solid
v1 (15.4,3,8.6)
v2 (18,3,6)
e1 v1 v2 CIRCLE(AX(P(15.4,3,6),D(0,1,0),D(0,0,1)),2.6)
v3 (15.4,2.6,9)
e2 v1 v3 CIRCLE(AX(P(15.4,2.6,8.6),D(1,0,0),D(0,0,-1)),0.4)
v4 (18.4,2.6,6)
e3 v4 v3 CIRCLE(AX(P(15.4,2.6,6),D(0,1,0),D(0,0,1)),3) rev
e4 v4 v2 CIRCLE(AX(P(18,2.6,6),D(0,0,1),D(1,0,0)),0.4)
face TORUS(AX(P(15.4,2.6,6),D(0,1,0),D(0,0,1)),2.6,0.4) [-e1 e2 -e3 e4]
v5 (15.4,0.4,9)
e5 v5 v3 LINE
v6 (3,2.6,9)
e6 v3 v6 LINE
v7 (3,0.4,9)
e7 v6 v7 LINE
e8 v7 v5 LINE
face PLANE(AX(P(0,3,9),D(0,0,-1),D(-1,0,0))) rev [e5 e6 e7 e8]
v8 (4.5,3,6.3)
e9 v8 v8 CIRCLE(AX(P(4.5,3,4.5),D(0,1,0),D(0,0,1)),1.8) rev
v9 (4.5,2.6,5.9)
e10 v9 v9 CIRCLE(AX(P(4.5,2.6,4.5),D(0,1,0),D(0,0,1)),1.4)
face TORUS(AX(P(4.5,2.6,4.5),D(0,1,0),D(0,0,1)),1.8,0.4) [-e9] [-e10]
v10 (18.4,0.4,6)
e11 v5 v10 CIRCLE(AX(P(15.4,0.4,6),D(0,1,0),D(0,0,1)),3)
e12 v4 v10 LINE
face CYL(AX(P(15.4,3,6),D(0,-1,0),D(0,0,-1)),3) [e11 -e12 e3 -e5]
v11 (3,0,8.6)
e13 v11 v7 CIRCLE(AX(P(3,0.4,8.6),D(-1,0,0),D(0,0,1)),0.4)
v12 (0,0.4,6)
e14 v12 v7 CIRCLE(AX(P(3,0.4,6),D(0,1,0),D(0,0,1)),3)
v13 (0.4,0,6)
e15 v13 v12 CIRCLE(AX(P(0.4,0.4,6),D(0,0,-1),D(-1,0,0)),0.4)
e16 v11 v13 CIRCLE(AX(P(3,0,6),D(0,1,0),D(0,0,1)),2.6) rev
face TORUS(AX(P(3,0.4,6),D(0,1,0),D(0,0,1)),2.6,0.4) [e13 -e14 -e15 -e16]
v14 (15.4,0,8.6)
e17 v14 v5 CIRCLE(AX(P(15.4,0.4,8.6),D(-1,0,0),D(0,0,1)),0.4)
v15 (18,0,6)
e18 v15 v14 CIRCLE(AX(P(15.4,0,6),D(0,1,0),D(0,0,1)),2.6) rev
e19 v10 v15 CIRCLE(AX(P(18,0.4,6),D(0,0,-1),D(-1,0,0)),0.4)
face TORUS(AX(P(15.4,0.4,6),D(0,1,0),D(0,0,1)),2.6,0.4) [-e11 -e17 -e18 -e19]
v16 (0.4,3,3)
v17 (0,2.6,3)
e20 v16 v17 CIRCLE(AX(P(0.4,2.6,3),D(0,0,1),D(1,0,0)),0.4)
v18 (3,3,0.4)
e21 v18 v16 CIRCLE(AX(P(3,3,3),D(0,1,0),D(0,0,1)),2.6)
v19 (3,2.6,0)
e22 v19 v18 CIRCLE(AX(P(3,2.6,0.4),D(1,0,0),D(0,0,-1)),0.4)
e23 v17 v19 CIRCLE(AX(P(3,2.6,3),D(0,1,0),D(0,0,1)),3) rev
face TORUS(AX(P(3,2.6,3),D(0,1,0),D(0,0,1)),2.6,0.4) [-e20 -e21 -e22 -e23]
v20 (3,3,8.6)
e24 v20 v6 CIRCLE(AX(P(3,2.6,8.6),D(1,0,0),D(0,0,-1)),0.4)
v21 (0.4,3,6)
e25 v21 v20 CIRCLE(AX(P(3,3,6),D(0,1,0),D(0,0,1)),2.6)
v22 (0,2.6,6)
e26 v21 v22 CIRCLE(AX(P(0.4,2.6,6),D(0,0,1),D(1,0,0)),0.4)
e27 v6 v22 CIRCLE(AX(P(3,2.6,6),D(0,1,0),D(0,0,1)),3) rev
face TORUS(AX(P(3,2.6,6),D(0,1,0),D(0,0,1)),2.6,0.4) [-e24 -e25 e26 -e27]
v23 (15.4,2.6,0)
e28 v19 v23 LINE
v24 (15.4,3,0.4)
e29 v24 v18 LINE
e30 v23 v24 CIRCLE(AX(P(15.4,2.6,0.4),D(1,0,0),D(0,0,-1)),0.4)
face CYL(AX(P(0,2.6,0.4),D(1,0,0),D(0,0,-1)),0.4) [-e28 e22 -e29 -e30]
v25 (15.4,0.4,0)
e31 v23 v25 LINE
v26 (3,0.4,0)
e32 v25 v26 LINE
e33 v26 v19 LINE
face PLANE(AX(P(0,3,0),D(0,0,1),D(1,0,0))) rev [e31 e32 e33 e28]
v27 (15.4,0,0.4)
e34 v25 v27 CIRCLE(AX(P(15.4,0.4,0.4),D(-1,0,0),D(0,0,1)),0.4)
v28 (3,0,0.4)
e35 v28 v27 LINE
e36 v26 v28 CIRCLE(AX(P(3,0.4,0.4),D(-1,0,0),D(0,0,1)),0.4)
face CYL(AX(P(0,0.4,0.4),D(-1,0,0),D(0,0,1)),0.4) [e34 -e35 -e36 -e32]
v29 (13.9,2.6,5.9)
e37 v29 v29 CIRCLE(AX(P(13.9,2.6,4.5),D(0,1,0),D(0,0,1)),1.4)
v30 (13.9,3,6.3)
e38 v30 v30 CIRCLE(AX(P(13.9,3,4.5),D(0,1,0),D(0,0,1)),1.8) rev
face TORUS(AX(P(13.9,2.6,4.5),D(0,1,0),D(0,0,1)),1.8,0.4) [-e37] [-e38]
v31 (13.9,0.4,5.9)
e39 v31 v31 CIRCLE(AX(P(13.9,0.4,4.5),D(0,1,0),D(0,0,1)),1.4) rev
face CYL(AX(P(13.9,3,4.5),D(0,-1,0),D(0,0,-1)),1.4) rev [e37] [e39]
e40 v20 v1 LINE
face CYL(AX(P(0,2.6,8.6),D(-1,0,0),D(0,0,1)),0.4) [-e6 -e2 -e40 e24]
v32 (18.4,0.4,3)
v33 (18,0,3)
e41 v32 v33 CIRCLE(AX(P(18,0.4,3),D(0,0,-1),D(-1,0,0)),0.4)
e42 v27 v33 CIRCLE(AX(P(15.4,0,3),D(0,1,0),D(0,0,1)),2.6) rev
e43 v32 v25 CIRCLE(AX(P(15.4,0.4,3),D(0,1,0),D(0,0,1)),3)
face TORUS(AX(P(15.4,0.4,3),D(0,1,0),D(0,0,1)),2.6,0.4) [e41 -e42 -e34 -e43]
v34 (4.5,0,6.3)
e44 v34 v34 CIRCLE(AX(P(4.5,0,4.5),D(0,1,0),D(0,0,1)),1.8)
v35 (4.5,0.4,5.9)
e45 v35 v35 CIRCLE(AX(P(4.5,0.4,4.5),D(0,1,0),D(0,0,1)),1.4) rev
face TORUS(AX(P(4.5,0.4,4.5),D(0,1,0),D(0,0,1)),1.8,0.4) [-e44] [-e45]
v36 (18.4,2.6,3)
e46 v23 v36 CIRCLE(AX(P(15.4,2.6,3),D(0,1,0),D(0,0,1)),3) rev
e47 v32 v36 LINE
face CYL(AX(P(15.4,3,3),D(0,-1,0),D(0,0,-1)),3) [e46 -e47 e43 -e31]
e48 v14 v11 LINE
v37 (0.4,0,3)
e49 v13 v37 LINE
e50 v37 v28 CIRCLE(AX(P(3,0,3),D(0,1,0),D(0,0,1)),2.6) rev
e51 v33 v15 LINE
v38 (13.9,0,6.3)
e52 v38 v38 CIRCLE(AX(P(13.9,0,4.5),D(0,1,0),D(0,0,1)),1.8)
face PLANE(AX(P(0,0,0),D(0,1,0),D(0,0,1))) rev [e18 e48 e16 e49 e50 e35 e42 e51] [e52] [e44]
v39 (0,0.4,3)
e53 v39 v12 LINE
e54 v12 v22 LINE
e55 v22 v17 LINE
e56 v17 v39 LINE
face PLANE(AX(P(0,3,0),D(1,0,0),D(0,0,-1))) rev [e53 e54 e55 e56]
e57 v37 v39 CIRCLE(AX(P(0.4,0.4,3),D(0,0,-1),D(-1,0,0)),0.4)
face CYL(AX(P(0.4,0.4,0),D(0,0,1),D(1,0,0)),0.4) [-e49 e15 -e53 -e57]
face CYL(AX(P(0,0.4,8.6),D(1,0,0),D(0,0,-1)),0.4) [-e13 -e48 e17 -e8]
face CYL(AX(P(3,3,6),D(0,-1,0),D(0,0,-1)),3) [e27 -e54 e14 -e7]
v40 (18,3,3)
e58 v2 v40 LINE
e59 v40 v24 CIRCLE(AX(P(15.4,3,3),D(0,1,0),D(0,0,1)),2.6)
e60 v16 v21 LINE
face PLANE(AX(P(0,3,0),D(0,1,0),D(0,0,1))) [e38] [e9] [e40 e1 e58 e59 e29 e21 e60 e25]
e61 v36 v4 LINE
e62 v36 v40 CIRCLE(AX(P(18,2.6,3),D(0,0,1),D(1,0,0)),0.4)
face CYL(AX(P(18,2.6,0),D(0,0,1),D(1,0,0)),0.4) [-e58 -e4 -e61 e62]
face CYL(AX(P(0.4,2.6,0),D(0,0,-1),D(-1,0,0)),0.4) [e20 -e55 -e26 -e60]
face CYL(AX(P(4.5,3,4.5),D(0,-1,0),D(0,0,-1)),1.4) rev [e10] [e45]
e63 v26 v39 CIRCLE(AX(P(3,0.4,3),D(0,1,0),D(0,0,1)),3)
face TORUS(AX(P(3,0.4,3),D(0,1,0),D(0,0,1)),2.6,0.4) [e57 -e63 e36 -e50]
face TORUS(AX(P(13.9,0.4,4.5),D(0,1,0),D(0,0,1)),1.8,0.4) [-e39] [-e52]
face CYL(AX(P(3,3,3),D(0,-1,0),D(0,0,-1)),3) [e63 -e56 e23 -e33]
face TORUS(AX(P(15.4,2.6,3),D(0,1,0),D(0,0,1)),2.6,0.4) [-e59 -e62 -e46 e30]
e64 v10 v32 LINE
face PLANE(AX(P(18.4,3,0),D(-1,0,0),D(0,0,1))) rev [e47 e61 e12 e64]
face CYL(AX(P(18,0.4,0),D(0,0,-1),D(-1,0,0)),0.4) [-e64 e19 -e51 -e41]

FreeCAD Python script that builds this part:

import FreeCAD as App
import Part
import Sketcher
Q = App.Units.Quantity


def edges_at(feature, points):
    """Names of the edges that pass closest to the given points."""
    edges = feature.Shape.Edges
    near = lambda p: min(range(len(edges)), key=lambda i: edges[i].distToShape(Part.Vertex(*p))[0])
    return sorted({f"Edge{near(p) + 1}" for p in points})

doc = App.newDocument("Part")
body = doc.addObject("PartDesign::Body", "Body")

# Sketch on XZ plane
sketch1 = doc.addObject("Sketcher::SketchObject", "Sketch")
body.addObject(sketch1)
sketch1.AttachmentSupport = (doc.XZ_Plane, [""])
sketch1.MapMode = "FlatFace"
sketch1.addGeometry([
    Part.LineSegment(App.Vector(0, 0, 0), App.Vector(0, 9, 0)),  # 0
    Part.LineSegment(App.Vector(0, 9, 0), App.Vector(18.4, 9, 0)),  # 1
    Part.LineSegment(App.Vector(18.4, 9, 0), App.Vector(18.4, 0, 0)),  # 2
    Part.LineSegment(App.Vector(18.4, 0, 0), App.Vector(0, 0, 0)),  # 3
    Part.Circle(App.Vector(4.5, 4.5, 0), App.Vector(0, 0, 1), 1.4),  # 4
    Part.Circle(App.Vector(13.9, 4.5, 0), App.Vector(0, 0, 1), 1.4),  # 5
], False)
sketch1.addConstraint([
    Sketcher.Constraint("Coincident", 0, 2, 1, 1),
    Sketcher.Constraint("Coincident", 1, 2, 2, 1),
    Sketcher.Constraint("Coincident", 2, 2, 3, 1),
    Sketcher.Constraint("Coincident", 3, 2, 0, 1),
    Sketcher.Constraint("Vertical", 0),
    Sketcher.Constraint("Horizontal", 1),
    Sketcher.Constraint("Vertical", 2),
    Sketcher.Constraint("Horizontal", 3),
    Sketcher.Constraint("Coincident", 3, 2, -1, 1),
    Sketcher.Constraint("Equal", 4, 5),
    Sketcher.Constraint("Horizontal", 4, 3, 5, 3),
    Sketcher.Constraint("Diameter", 4, Q("2.8 mm")),
    Sketcher.Constraint("DistanceY", 0, 1, 0, 2, Q("9 mm")),
    Sketcher.Constraint("DistanceX", 1, 1, 1, 2, Q("18.4 mm")),
    Sketcher.Constraint("DistanceX", -1, 1, 4, 3, Q("4.5 mm")),
    Sketcher.Constraint("DistanceY", -1, 1, 4, 3, Q("4.5 mm")),
    Sketcher.Constraint("DistanceX", -1, 1, 5, 3, Q("13.9 mm")),
])
pad1 = doc.addObject("PartDesign::Pad", "Pad")
body.addObject(pad1)
pad1.Profile = sketch1
pad1.Length = 3
pad1.Reversed = True
doc.recompute()

fillet = doc.addObject("PartDesign::Fillet", "Fillet")
body.addObject(fillet)
fillet.Base = (pad1, edges_at(pad1, [
    (0, 1.5, 0),
    (18.4, 1.5, 0),
    (18.4, 1.5, 9),
    (0, 1.5, 9),
]))
fillet.Radius = 3
doc.recompute()

fillet2 = doc.addObject("PartDesign::Fillet", "Fillet001")
body.addObject(fillet2)
fillet2.Base = (fillet, edges_at(fillet, [
    (4.5, 0, 3.1),
    (4.5, 3, 3.1),
    (13.9, 0, 3.1),
    (13.9, 3, 3.1),
    (9.2, 0, 0),
    (9.2, 3, 0),
    (0, 0, 4.5),
    (18.4, 0, 4.5),
    (9.2, 0, 9),
    (0.879, 0, 0.879),
    (0.879, 0, 8.121),
    (17.521, 0, 8.121),
    (17.521, 0, 0.879),
    (18.4, 3, 4.5),
    (0, 3, 4.5),
    (9.2, 3, 9),
    (0.879, 3, 0.879),
    (0.879, 3, 8.121),
    (17.521, 3, 8.121),
    (17.521, 3, 0.879),
]))
fillet2.Radius = 0.4

doc.recompute()
